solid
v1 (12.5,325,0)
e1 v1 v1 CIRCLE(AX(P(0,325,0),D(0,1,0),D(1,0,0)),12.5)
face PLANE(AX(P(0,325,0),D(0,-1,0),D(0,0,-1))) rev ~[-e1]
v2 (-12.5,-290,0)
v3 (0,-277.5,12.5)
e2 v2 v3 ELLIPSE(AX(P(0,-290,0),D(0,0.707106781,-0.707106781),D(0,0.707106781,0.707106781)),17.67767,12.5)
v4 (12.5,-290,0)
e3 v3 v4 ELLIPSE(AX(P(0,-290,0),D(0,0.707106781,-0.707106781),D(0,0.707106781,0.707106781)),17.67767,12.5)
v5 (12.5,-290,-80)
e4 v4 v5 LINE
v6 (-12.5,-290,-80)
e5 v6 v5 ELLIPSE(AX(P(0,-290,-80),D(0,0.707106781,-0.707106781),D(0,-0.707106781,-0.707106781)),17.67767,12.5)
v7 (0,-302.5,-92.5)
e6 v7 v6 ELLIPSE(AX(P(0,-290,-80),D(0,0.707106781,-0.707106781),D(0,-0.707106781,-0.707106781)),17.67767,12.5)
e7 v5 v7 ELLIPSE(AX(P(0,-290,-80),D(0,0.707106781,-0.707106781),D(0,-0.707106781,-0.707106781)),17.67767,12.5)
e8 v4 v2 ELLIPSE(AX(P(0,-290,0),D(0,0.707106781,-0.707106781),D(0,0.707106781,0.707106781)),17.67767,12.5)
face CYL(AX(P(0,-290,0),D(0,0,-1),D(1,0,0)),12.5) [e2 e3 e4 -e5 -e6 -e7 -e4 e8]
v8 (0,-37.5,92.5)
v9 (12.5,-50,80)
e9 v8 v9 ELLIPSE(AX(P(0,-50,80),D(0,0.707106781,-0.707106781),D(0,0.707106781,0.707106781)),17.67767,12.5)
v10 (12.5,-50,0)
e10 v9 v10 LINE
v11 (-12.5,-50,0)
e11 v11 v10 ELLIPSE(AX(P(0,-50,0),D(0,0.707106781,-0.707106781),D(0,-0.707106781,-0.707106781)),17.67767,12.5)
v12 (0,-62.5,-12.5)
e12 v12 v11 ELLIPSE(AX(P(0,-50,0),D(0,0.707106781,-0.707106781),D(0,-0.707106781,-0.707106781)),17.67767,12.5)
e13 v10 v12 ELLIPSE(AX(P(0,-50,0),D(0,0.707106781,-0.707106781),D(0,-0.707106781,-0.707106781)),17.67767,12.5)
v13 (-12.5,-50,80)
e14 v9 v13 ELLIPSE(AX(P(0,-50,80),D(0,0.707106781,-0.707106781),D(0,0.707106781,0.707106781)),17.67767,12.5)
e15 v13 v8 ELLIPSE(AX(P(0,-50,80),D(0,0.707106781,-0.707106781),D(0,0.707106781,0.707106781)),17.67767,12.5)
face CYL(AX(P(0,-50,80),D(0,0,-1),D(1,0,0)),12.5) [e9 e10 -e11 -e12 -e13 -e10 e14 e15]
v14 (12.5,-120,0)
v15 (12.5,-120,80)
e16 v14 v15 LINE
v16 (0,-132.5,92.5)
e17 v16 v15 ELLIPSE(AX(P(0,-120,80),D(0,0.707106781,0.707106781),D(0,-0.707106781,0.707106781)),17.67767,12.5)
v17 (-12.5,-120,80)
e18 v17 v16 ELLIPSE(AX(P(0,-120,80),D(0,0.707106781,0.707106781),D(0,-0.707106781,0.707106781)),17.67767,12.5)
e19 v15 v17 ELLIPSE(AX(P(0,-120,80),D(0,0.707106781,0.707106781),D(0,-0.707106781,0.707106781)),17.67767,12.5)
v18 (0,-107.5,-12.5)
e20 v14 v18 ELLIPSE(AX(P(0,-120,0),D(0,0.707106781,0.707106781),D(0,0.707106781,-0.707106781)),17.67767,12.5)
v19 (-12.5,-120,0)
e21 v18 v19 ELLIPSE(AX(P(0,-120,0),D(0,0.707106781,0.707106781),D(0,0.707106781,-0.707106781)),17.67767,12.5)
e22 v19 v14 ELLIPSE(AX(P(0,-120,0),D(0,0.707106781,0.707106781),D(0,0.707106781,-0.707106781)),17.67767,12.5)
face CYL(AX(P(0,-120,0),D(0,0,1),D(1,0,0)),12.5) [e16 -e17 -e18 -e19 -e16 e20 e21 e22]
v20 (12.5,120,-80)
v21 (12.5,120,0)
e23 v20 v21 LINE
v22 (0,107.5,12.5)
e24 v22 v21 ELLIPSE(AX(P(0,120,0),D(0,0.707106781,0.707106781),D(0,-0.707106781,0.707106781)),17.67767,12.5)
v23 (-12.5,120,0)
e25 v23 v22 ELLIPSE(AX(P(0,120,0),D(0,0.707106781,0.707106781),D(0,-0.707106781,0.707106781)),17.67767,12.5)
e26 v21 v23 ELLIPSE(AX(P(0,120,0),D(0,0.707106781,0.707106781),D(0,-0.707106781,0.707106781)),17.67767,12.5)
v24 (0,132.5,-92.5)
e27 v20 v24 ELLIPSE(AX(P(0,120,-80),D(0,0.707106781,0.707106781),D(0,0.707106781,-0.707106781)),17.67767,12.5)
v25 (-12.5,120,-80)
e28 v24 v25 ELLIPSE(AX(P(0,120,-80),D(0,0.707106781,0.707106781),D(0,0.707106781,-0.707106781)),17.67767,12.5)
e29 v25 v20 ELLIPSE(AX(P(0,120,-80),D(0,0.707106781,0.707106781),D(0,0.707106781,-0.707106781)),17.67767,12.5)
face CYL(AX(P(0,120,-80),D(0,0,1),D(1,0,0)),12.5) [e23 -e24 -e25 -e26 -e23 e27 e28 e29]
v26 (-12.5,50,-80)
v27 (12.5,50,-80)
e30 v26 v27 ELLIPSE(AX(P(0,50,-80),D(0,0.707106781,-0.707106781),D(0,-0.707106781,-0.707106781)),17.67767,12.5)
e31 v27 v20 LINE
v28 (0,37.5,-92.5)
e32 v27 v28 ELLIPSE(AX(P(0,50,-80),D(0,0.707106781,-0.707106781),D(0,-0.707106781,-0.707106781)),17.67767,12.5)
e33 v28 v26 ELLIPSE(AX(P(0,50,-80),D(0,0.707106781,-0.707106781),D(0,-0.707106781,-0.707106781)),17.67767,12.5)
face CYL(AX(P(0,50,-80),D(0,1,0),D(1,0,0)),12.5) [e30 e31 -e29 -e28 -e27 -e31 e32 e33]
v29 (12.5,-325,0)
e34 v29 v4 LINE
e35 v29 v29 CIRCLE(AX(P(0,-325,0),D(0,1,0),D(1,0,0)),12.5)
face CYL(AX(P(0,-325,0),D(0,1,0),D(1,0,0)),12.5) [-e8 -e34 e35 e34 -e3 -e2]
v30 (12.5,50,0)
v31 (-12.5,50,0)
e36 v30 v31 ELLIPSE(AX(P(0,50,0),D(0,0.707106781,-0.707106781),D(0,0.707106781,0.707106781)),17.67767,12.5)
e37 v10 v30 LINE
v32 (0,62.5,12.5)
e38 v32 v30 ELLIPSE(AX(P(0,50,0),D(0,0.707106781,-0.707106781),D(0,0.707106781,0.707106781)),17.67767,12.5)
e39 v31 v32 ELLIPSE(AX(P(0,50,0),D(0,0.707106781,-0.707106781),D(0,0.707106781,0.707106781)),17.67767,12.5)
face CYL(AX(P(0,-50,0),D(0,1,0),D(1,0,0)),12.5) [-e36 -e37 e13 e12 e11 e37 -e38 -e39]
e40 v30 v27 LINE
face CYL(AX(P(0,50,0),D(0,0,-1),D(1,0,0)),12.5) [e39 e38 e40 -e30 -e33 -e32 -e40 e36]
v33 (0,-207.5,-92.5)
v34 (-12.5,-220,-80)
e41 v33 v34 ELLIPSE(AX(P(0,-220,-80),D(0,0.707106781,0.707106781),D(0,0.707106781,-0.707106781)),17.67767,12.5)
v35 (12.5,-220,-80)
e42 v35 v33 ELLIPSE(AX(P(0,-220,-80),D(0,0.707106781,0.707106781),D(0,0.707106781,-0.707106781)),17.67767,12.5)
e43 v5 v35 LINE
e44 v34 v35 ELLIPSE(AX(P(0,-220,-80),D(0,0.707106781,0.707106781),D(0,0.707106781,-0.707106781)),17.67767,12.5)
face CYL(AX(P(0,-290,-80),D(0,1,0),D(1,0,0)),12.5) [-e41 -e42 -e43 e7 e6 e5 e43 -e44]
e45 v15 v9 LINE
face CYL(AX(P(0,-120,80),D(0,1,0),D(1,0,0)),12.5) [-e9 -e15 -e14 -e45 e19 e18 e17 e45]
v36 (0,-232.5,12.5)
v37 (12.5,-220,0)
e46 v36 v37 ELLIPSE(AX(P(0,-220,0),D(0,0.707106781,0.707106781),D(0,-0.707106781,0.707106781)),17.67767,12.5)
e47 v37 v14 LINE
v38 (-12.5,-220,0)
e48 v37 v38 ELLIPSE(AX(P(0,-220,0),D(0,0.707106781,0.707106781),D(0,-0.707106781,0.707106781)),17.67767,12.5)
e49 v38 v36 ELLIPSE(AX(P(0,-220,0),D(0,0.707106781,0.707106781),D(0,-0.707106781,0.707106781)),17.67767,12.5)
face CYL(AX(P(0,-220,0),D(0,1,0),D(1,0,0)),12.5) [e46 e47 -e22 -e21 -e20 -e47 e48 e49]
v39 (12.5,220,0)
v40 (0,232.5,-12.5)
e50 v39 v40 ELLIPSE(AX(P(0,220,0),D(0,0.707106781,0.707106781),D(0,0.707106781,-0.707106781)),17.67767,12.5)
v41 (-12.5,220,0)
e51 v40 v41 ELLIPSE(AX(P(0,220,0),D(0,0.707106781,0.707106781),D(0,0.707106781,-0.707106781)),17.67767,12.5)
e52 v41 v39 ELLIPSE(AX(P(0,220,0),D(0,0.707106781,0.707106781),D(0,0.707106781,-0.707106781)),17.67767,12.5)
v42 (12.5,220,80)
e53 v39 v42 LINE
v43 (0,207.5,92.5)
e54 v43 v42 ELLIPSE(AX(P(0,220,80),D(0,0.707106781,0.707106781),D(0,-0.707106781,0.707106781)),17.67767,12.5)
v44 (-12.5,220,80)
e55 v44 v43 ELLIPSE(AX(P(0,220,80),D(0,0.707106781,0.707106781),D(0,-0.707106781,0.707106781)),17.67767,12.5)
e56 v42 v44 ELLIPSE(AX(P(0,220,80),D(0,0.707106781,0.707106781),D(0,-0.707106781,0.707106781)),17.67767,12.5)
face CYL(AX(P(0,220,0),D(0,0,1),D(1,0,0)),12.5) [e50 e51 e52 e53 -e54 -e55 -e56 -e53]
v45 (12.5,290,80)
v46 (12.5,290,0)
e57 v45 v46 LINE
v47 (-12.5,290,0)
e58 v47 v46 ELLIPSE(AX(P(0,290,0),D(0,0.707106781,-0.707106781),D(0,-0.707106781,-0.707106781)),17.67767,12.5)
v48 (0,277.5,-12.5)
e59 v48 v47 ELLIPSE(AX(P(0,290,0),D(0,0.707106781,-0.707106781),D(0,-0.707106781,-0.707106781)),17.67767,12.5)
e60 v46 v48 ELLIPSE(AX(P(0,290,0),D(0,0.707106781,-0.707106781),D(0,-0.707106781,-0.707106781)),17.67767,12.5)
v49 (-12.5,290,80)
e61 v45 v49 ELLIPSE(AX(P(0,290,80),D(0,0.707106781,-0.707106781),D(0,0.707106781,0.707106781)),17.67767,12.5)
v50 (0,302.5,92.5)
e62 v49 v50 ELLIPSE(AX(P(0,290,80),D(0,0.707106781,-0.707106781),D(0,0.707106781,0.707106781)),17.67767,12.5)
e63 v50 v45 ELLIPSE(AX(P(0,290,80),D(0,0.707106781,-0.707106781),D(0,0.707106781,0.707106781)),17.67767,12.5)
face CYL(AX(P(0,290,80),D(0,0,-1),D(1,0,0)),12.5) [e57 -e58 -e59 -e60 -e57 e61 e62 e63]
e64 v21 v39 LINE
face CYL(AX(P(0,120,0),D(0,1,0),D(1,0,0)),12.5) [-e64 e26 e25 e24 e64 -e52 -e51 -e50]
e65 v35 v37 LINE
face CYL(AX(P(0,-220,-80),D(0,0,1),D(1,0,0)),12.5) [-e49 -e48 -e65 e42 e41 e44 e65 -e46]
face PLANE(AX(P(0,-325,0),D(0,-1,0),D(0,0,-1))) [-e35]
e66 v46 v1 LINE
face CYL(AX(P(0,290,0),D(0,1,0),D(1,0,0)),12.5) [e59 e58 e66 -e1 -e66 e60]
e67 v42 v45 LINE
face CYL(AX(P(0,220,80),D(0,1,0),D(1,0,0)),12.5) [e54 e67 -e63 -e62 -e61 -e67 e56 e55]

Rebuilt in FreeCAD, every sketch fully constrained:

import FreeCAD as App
import Part
import Sketcher
Q = App.Units.Quantity

doc = App.newDocument("Part")
body = doc.addObject("PartDesign::Body", "Body")

sketch1 = body.newObject("Sketcher::SketchObject", "Sketch")
sketch1.AttachmentSupport = (doc.getObject("XZ_Plane"), [""])
sketch1.MapMode = "FlatFace"
sketch1.AttachmentOffset = App.Placement(App.Vector(0, 0, 325), App.Rotation())
sketch1.addGeometry(Part.Circle(App.Vector(0, 0, 0), App.Vector(0, 0, 1), 12.5), False)
sketch1.addConstraint(Sketcher.Constraint("Coincident", 0, 3, -1, 1))
sketch1.addConstraint(Sketcher.Constraint("Diameter", 0, Q("25 mm")))

sketch2 = body.newObject("Sketcher::SketchObject", "Sketch001")
sketch2.AttachmentSupport = (doc.getObject("YZ_Plane"), [""])
sketch2.MapMode = "FlatFace"
sketch2.addGeometry(Part.LineSegment(App.Vector(-325, 0, 0), App.Vector(-290, 0, 0)), False)
sketch2.addGeometry(Part.LineSegment(App.Vector(-290, 0, 0), App.Vector(-290, -80, 0)), False)
sketch2.addGeometry(Part.LineSegment(App.Vector(-290, -80, 0), App.Vector(-220, -80, 0)), False)
sketch2.addGeometry(Part.LineSegment(App.Vector(-220, -80, 0), App.Vector(-220, 0, 0)), False)
sketch2.addGeometry(Part.LineSegment(App.Vector(-220, 0, 0), App.Vector(-120, 0, 0)), False)
sketch2.addGeometry(Part.LineSegment(App.Vector(-120, 0, 0), App.Vector(-120, 80, 0)), False)
sketch2.addGeometry(Part.LineSegment(App.Vector(-120, 80, 0), App.Vector(-50, 80, 0)), False)
sketch2.addGeometry(Part.LineSegment(App.Vector(-50, 80, 0), App.Vector(-50, 0, 0)), False)
sketch2.addGeometry(Part.LineSegment(App.Vector(-50, 0, 0), App.Vector(50, 0, 0)), False)
sketch2.addGeometry(Part.LineSegment(App.Vector(50, 0, 0), App.Vector(50, -80, 0)), False)
sketch2.addGeometry(Part.LineSegment(App.Vector(50, -80, 0), App.Vector(120, -80, 0)), False)
sketch2.addGeometry(Part.LineSegment(App.Vector(120, -80, 0), App.Vector(120, 0, 0)), False)
sketch2.addGeometry(Part.LineSegment(App.Vector(120, 0, 0), App.Vector(220, 0, 0)), False)
sketch2.addGeometry(Part.LineSegment(App.Vector(220, 0, 0), App.Vector(220, 80, 0)), False)
sketch2.addGeometry(Part.LineSegment(App.Vector(220, 80, 0), App.Vector(290, 80, 0)), False)
sketch2.addGeometry(Part.LineSegment(App.Vector(290, 80, 0), App.Vector(290, 0, 0)), False)
sketch2.addGeometry(Part.LineSegment(App.Vector(290, 0, 0), App.Vector(325, 0, 0)), False)
sketch2.addConstraint(Sketcher.Constraint("Coincident", 0, 2, 1, 1))
sketch2.addConstraint(Sketcher.Constraint("Coincident", 1, 2, 2, 1))
sketch2.addConstraint(Sketcher.Constraint("Coincident", 2, 2, 3, 1))
sketch2.addConstraint(Sketcher.Constraint("Coincident", 3, 2, 4, 1))
sketch2.addConstraint(Sketcher.Constraint("Coincident", 4, 2, 5, 1))
sketch2.addConstraint(Sketcher.Constraint("Coincident", 5, 2, 6, 1))
sketch2.addConstraint(Sketcher.Constraint("Coincident", 6, 2, 7, 1))
sketch2.addConstraint(Sketcher.Constraint("Coincident", 7, 2, 8, 1))
sketch2.addConstraint(Sketcher.Constraint("Coincident", 8, 2, 9, 1))
sketch2.addConstraint(Sketcher.Constraint("Coincident", 9, 2, 10, 1))
sketch2.addConstraint(Sketcher.Constraint("Coincident", 10, 2, 11, 1))
sketch2.addConstraint(Sketcher.Constraint("Coincident", 11, 2, 12, 1))
sketch2.addConstraint(Sketcher.Constraint("Coincident", 12, 2, 13, 1))
sketch2.addConstraint(Sketcher.Constraint("Coincident", 13, 2, 14, 1))
sketch2.addConstraint(Sketcher.Constraint("Coincident", 14, 2, 15, 1))
sketch2.addConstraint(Sketcher.Constraint("Coincident", 15, 2, 16, 1))
sketch2.addConstraint(Sketcher.Constraint("Horizontal", 0))
sketch2.addConstraint(Sketcher.Constraint("Vertical", 1))
sketch2.addConstraint(Sketcher.Constraint("Horizontal", 2))
sketch2.addConstraint(Sketcher.Constraint("Vertical", 3))
sketch2.addConstraint(Sketcher.Constraint("Horizontal", 4))
sketch2.addConstraint(Sketcher.Constraint("Vertical", 5))
sketch2.addConstraint(Sketcher.Constraint("Horizontal", 6))
sketch2.addConstraint(Sketcher.Constraint("Vertical", 7))
sketch2.addConstraint(Sketcher.Constraint("Horizontal", 8))
sketch2.addConstraint(Sketcher.Constraint("Vertical", 9))
sketch2.addConstraint(Sketcher.Constraint("Horizontal", 10))
sketch2.addConstraint(Sketcher.Constraint("Vertical", 11))
sketch2.addConstraint(Sketcher.Constraint("Horizontal", 12))
sketch2.addConstraint(Sketcher.Constraint("Vertical", 13))
sketch2.addConstraint(Sketcher.Constraint("Horizontal", 14))
sketch2.addConstraint(Sketcher.Constraint("Vertical", 15))
sketch2.addConstraint(Sketcher.Constraint("Horizontal", 16))
sketch2.addConstraint(Sketcher.Constraint("Symmetric", 7, 2, 8, 2, -1, 1))
sketch2.addConstraint(Sketcher.Constraint("Symmetric", 5, 2, 10, 2, -1, 1))
sketch2.addConstraint(Sketcher.Constraint("Symmetric", 3, 2, 12, 2, -1, 1))
sketch2.addConstraint(Sketcher.Constraint("Symmetric", 1, 2, 14, 2, -1, 1))
sketch2.addConstraint(Sketcher.Constraint("Symmetric", 0, 1, 16, 2, -1, 1))
sketch2.addConstraint(Sketcher.Constraint("PointOnObject", 0, 1, -1))
sketch2.addConstraint(Sketcher.Constraint("PointOnObject", 3, 2, -1))
sketch2.addConstraint(Sketcher.Constraint("Horizontal", 2, 2, 9, 2))
sketch2.addConstraint(Sketcher.Constraint("Equal", 2, 6))
sketch2.addConstraint(Sketcher.Constraint("Equal", 4, 8))
sketch2.addConstraint(Sketcher.Constraint("DistanceX", 0, 1, 0, 2, Q("35 mm")))
sketch2.addConstraint(Sketcher.Constraint("DistanceX", 2, 1, 2, 2, Q("70 mm")))
sketch2.addConstraint(Sketcher.Constraint("DistanceX", 4, 1, 4, 2, Q("100 mm")))
sketch2.addConstraint(Sketcher.Constraint("DistanceY", 1, 2, 1, 1, Q("80 mm")))
doc.recompute()

additivepipe = body.newObject("PartDesign::AdditivePipe", "AdditivePipe")
additivepipe.Profile = sketch1
additivepipe.Spine = (sketch2, ["Edge1", "Edge2", "Edge3", "Edge4", "Edge5", "Edge6", "Edge7", "Edge8", "Edge9", "Edge10", "Edge11", "Edge12", "Edge13", "Edge14", "Edge15", "Edge16", "Edge17"])
additivepipe.Transition = "Right corner"

doc.recompute()
